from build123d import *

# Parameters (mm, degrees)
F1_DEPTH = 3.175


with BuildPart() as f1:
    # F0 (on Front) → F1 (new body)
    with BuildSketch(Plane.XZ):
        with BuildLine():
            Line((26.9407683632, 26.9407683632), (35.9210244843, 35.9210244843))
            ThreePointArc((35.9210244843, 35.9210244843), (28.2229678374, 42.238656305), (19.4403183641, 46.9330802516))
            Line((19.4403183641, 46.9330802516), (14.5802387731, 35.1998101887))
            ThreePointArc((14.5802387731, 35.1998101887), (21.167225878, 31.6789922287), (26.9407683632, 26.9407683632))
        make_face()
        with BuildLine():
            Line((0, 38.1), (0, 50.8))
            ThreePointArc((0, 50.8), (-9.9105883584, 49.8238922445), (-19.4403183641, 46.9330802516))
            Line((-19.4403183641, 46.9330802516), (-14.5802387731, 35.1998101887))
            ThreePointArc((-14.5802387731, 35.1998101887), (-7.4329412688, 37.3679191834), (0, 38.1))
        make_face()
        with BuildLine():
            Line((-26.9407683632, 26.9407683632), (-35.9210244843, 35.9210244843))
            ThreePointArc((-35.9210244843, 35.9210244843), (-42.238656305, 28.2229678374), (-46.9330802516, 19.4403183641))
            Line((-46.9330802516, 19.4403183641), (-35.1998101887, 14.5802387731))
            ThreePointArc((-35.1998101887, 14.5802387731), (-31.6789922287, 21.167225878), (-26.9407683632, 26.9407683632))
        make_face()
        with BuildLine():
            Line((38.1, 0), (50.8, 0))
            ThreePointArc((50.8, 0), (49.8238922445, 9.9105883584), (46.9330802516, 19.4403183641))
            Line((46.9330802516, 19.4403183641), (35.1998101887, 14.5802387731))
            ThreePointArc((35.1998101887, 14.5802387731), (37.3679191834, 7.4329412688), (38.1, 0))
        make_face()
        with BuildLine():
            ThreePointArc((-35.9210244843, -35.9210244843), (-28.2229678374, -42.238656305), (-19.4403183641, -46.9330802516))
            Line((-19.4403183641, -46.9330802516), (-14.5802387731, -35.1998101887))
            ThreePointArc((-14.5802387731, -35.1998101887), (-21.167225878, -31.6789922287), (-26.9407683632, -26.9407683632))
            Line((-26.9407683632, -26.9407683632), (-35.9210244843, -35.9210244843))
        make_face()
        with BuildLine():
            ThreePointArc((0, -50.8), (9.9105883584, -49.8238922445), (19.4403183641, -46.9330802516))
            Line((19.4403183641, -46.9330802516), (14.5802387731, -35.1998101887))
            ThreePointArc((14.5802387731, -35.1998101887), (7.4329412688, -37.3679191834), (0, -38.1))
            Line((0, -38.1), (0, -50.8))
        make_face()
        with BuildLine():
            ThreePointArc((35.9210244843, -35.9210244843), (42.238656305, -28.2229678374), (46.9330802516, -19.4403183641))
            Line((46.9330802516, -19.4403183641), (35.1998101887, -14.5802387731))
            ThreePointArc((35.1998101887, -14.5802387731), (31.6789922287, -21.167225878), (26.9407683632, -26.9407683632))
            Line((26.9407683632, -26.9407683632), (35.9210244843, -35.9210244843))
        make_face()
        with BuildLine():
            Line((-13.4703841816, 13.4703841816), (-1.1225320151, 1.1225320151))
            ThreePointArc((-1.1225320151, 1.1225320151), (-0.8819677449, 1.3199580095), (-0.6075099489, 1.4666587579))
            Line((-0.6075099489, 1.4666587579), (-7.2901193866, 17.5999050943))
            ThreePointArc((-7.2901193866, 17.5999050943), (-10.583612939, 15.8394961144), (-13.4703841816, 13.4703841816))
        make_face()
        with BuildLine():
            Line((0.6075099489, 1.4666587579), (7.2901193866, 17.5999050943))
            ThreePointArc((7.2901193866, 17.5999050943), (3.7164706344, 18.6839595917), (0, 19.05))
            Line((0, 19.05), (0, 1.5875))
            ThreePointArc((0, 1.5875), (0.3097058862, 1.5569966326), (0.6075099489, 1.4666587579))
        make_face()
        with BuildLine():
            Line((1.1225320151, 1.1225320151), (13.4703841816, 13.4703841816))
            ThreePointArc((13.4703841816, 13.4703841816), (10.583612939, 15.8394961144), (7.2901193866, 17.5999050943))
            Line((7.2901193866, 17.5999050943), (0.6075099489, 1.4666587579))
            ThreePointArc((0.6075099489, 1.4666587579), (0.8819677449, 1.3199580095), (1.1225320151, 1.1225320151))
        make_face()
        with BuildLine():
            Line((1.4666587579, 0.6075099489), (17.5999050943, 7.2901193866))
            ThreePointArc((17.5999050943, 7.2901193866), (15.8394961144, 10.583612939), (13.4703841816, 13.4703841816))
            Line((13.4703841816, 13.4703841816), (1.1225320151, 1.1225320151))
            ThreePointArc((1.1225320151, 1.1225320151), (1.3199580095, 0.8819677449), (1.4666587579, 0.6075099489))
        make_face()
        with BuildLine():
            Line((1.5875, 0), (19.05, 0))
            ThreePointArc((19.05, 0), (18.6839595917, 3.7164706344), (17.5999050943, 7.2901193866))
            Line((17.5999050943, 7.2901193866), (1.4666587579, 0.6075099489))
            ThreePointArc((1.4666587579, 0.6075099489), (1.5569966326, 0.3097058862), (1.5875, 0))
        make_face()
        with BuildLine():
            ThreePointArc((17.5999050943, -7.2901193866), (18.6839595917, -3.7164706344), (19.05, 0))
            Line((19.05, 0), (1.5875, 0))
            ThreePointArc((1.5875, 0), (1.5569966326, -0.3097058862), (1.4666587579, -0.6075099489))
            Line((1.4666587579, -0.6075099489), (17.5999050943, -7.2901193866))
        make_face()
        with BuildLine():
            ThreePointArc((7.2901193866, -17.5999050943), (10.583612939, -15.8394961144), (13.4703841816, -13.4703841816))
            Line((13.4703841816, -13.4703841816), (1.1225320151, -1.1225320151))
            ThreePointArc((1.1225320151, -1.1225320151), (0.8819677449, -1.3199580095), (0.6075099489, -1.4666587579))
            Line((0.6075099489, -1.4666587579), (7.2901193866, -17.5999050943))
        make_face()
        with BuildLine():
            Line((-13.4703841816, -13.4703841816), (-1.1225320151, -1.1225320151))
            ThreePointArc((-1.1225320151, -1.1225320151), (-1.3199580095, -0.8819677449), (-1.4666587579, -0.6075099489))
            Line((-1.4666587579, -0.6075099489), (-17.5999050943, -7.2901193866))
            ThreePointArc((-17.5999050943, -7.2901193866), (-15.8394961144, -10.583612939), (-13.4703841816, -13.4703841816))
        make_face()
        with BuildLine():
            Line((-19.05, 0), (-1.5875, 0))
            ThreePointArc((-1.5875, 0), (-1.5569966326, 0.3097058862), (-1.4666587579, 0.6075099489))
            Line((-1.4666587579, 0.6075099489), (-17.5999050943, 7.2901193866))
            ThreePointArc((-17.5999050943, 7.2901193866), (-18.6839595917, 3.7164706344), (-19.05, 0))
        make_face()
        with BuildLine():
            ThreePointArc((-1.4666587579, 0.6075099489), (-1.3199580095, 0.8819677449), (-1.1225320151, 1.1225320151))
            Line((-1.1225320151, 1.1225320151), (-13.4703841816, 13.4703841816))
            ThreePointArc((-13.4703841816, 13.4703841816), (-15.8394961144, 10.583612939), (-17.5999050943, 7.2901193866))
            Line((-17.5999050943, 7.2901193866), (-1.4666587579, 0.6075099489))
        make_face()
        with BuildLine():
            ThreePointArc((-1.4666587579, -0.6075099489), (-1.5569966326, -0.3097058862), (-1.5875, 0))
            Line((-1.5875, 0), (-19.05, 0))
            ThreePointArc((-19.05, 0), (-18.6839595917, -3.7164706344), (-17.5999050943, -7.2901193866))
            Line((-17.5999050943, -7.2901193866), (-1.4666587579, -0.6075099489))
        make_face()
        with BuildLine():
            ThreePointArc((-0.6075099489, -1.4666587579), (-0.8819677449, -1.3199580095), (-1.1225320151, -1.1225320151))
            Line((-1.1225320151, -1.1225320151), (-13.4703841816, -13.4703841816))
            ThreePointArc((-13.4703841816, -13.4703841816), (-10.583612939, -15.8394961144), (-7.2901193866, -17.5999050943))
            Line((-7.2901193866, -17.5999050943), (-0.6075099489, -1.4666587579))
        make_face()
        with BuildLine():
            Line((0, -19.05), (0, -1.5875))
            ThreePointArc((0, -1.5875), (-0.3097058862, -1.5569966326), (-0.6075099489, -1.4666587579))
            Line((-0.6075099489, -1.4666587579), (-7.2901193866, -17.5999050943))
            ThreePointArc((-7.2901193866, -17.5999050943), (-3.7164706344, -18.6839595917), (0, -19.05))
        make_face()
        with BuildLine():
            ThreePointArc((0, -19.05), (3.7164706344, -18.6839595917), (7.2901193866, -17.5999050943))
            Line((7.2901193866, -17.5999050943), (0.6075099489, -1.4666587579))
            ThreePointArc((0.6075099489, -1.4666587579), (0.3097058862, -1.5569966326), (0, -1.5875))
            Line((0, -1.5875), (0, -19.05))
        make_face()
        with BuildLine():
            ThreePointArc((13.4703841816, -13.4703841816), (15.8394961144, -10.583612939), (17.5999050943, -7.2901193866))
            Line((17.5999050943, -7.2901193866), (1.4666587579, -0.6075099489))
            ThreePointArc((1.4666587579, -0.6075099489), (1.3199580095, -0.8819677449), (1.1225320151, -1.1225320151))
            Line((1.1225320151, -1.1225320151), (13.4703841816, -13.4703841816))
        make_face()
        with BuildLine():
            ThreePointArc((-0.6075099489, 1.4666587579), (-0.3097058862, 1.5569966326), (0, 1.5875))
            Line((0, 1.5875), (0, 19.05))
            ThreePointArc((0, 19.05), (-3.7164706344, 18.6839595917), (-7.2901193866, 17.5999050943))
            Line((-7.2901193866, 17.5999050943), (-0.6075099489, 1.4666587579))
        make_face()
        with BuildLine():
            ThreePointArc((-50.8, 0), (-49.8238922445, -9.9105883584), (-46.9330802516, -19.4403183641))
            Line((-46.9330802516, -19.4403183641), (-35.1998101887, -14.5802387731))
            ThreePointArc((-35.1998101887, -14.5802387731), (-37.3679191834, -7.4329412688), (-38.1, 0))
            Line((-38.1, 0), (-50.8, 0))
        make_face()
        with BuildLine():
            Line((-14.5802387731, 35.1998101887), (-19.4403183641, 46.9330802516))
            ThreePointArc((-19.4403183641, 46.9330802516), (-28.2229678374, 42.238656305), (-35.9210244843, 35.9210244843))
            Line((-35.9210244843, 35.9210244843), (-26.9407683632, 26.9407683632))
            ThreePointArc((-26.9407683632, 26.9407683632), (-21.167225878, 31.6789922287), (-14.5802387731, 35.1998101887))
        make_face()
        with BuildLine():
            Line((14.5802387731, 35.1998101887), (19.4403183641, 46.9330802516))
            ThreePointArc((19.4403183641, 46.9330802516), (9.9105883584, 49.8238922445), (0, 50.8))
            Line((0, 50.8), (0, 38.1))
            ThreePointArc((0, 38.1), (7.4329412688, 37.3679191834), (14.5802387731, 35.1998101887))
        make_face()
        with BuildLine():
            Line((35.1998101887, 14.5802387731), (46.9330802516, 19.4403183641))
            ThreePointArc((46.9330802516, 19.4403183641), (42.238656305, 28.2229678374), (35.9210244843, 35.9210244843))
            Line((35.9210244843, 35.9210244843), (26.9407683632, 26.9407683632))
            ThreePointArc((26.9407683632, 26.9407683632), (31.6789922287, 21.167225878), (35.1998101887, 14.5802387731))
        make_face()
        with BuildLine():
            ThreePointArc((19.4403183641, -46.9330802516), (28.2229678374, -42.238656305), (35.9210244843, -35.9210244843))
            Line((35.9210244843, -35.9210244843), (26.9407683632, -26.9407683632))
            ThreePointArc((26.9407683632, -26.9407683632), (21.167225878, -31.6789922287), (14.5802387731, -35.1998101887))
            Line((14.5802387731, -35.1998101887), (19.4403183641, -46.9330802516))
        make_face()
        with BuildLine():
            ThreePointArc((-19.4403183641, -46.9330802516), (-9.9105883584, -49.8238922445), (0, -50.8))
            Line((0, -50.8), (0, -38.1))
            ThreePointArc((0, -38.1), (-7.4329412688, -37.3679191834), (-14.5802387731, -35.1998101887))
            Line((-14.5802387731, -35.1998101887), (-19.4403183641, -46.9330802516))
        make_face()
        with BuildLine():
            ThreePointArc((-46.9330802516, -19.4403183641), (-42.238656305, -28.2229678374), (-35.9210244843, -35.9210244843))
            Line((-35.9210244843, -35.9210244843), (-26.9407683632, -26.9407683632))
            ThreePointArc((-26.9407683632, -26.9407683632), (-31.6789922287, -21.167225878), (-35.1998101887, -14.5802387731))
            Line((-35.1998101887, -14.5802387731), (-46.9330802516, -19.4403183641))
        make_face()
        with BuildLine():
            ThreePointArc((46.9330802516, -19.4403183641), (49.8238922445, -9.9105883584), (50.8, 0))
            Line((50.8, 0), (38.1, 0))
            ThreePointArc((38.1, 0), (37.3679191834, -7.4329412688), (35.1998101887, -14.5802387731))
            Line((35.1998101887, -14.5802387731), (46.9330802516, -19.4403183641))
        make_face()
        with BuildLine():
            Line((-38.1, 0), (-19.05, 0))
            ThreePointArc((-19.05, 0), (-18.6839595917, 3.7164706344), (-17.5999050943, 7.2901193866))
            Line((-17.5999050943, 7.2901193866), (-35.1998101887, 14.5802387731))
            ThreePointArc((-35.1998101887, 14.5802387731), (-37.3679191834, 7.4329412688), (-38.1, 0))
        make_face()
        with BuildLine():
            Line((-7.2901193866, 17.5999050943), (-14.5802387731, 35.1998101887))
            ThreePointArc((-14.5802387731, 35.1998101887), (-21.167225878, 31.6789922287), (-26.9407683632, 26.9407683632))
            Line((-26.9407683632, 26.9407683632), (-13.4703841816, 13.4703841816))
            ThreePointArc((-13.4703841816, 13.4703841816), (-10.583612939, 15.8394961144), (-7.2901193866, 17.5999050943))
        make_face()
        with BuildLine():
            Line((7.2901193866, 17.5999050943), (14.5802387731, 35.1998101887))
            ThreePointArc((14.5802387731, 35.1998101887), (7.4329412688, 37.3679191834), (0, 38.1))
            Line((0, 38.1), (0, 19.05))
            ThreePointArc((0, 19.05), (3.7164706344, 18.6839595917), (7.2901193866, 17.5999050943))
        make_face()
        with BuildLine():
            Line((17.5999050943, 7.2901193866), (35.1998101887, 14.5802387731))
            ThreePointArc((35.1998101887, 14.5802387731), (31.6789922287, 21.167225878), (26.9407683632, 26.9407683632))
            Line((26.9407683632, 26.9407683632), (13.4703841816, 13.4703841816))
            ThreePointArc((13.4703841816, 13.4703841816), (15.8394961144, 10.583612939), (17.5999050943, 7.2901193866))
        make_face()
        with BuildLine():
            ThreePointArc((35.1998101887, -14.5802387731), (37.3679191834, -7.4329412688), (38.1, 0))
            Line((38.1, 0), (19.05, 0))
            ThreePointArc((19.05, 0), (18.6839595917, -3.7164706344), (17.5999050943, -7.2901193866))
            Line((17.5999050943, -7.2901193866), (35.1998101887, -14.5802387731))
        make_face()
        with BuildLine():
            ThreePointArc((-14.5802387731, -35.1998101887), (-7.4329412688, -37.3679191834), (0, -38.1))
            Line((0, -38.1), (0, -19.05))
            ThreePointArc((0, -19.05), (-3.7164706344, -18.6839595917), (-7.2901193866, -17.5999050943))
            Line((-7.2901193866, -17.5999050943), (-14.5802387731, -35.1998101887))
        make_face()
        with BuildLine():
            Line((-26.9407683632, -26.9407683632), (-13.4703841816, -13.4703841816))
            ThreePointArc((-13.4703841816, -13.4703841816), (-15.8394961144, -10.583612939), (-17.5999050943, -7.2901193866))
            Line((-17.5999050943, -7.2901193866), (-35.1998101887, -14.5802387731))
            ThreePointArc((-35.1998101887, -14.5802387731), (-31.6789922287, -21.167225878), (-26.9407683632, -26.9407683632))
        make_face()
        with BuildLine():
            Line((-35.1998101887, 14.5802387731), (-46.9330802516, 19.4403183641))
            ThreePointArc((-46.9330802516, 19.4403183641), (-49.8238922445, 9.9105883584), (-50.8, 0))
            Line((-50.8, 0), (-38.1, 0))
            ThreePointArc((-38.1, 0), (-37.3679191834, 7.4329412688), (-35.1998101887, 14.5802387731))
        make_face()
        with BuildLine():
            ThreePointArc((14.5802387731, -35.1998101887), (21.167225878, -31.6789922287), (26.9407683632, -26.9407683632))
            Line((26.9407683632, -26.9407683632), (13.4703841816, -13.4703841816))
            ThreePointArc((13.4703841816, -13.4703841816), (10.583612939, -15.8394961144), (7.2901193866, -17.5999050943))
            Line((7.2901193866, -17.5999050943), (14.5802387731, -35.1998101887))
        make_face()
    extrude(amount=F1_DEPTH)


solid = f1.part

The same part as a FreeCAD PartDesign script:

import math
import FreeCAD as App
import Part
import Sketcher

V = App.Vector
Q = App.Units.Quantity

doc = App.newDocument("Part")
body = doc.addObject("PartDesign::Body", "Body")

# Sketch on XZ plane
sketch1 = doc.addObject("Sketcher::SketchObject", "Sketch")
body.addObject(sketch1)
sketch1.AttachmentSupport = (doc.XZ_Plane, [""])
sketch1.MapMode = "FlatFace"
sketch1.addGeometry([
    Part.ArcOfCircle(Part.Circle(V(0, 0, 0), V(0, 0, 1), 50.8), math.radians(112), math.radians(158)),  # 0
    Part.ArcOfCircle(Part.Circle(V(0, 0, 0), V(0, 0, 1), 50.8), math.radians(158), math.radians(180)),  # 1
    Part.ArcOfCircle(Part.Circle(V(0, 0, 0), V(0, 0, 1), 50.8), math.radians(180), math.radians(202)),  # 2
    Part.ArcOfCircle(Part.Circle(V(0, 0, 0), V(0, 0, 1), 50.8), math.radians(-158), math.radians(-112)),  # 3
    Part.ArcOfCircle(Part.Circle(V(0, 0, 0), V(0, 0, 1), 50.8), math.radians(-112), math.radians(-90)),  # 4
    Part.ArcOfCircle(Part.Circle(V(0, 0, 0), V(0, 0, 1), 50.8), math.radians(-90), math.radians(-68)),  # 5
    Part.ArcOfCircle(Part.Circle(V(0, 0, 0), V(0, 0, 1), 50.8), math.radians(-68), math.radians(-22)),  # 6
    Part.ArcOfCircle(Part.Circle(V(0, 0, 0), V(0, 0, 1), 50.8), math.radians(-22), math.radians(0)),  # 7
    Part.ArcOfCircle(Part.Circle(V(0, 0, 0), V(0, 0, 1), 50.8), math.radians(0), math.radians(22)),  # 8
    Part.ArcOfCircle(Part.Circle(V(0, 0, 0), V(0, 0, 1), 50.8), math.radians(22), math.radians(68)),  # 9
    Part.ArcOfCircle(Part.Circle(V(0, 0, 0), V(0, 0, 1), 50.8), math.radians(68), math.radians(90)),  # 10
    Part.ArcOfCircle(Part.Circle(V(0, 0, 0), V(0, 0, 1), 50.8), math.radians(90), math.radians(112)),  # 11
    Part.ArcOfCircle(Part.Circle(V(0, 0, 0), V(0, 0, 1), 38.1), math.radians(-135), math.radians(-113)),  # 12
    Part.LineSegment(V(-26.9, -26.9, 0), V(-13.5, -13.5, 0)),  # 13
    Part.ArcOfCircle(Part.Circle(V(0, 0, 0), V(0, 0, 1), 19), math.radians(-135), math.radians(-113)),  # 14
    Part.LineSegment(V(-7.3, -17.6, 0), V(-14.6, -35.2, 0)),  # 15
    Part.ArcOfCircle(Part.Circle(V(0, 0, 0), V(0, 0, 1), 38.1), math.radians(180), math.radians(203)),  # 16
    Part.LineSegment(V(-38.1, 0, 0), V(-19.1, 0, 0)),  # 17
    Part.ArcOfCircle(Part.Circle(V(0, 0, 0), V(0, 0, 1), 19), math.radians(180), math.radians(203)),  # 18
    Part.LineSegment(V(-17.6, -7.3, 0), V(-35.2, -14.6, 0)),  # 19
    Part.ArcOfCircle(Part.Circle(V(0, 0, 0), V(0, 0, 1), 38.1), math.radians(-90), math.radians(-67)),  # 20
    Part.LineSegment(V(0, -38.1, 0), V(0, -19.1, 0)),  # 21
    Part.ArcOfCircle(Part.Circle(V(0, 0, 0), V(0, 0, 1), 19), math.radians(-90), math.radians(-67)),  # 22
    Part.LineSegment(V(7.3, -17.6, 0), V(14.6, -35.2, 0)),  # 23
    Part.ArcOfCircle(Part.Circle(V(0, 0, 0), V(0, 0, 1), 19), math.radians(-45), math.radians(-23)),  # 24
    Part.LineSegment(V(17.6, -7.3, 0), V(35.2, -14.6, 0)),  # 25
    Part.ArcOfCircle(Part.Circle(V(0, 0, 0), V(0, 0, 1), 38.1), math.radians(-45), math.radians(-23)),  # 26
    Part.LineSegment(V(26.9, -26.9, 0), V(13.5, -13.5, 0)),  # 27
    Part.LineSegment(V(-17.6, 7.3, 0), V(-35.2, 14.6, 0)),  # 28
    Part.ArcOfCircle(Part.Circle(V(0, 0, 0), V(0, 0, 1), 38.1), math.radians(135), math.radians(157)),  # 29
    Part.LineSegment(V(-26.9, 26.9, 0), V(-13.5, 13.5, 0)),  # 30
    Part.ArcOfCircle(Part.Circle(V(0, 0, 0), V(0, 0, 1), 19), math.radians(135), math.radians(157)),  # 31
    Part.ArcOfCircle(Part.Circle(V(0, 0, 0), V(0, 0, 1), 38.1), math.radians(90), math.radians(113)),  # 32
    Part.LineSegment(V(0, 38.1, 0), V(0, 19.1, 0)),  # 33
    Part.ArcOfCircle(Part.Circle(V(0, 0, 0), V(0, 0, 1), 19), math.radians(90), math.radians(113)),  # 34
    Part.LineSegment(V(-7.3, 17.6, 0), V(-14.6, 35.2, 0)),  # 35
    Part.ArcOfCircle(Part.Circle(V(0, 0, 0), V(0, 0, 1), 1.6), math.radians(113), math.radians(135)),  # 36
    Part.ArcOfCircle(Part.Circle(V(0, 0, 0), V(0, 0, 1), 1.6), math.radians(90), math.radians(112)),  # 37
    Part.ArcOfCircle(Part.Circle(V(0, 0, 0), V(0, 0, 1), 1.6), math.radians(68), math.radians(90)),  # 38
    Part.ArcOfCircle(Part.Circle(V(0, 0, 0), V(0, 0, 1), 1.6), math.radians(45), math.radians(67)),  # 39
    Part.ArcOfCircle(Part.Circle(V(0, 0, 0), V(0, 0, 1), 1.6), math.radians(23), math.radians(45)),  # 40
    Part.ArcOfCircle(Part.Circle(V(0, 0, 0), V(0, 0, 1), 1.6), math.radians(0), math.radians(22)),  # 41
    Part.ArcOfCircle(Part.Circle(V(0, 0, 0), V(0, 0, 1), 1.6), math.radians(-22), math.radians(0)),  # 42
    Part.ArcOfCircle(Part.Circle(V(0, 0, 0), V(0, 0, 1), 1.6), math.radians(-45), math.radians(-23)),  # 43
    Part.ArcOfCircle(Part.Circle(V(0, 0, 0), V(0, 0, 1), 1.6), math.radians(-67), math.radians(-45)),  # 44
    Part.ArcOfCircle(Part.Circle(V(0, 0, 0), V(0, 0, 1), 1.6), math.radians(-90), math.radians(-68)),  # 45
    Part.ArcOfCircle(Part.Circle(V(0, 0, 0), V(0, 0, 1), 1.6), math.radians(-112), math.radians(-90)),  # 46
    Part.ArcOfCircle(Part.Circle(V(0, 0, 0), V(0, 0, 1), 1.6), math.radians(-135), math.radians(-113)),  # 47
    Part.ArcOfCircle(Part.Circle(V(0, 0, 0), V(0, 0, 1), 1.6), math.radians(-157), math.radians(-135)),  # 48
    Part.ArcOfCircle(Part.Circle(V(0, 0, 0), V(0, 0, 1), 1.6), math.radians(-180), math.radians(-158)),  # 49
    Part.ArcOfCircle(Part.Circle(V(0, 0, 0), V(0, 0, 1), 1.6), math.radians(158), math.radians(180)),  # 50
    Part.ArcOfCircle(Part.Circle(V(0, 0, 0), V(0, 0, 1), 1.6), math.radians(135), math.radians(157)),  # 51
    Part.ArcOfCircle(Part.Circle(V(0, 0, 0), V(0, 0, 1), 38.1), math.radians(0), math.radians(23)),  # 52
    Part.LineSegment(V(38.1, 0, 0), V(19.1, 0, 0)),  # 53
    Part.ArcOfCircle(Part.Circle(V(0, 0, 0), V(0, 0, 1), 19), math.radians(0), math.radians(23)),  # 54
    Part.LineSegment(V(17.6, 7.3, 0), V(35.2, 14.6, 0)),  # 55
    Part.ArcOfCircle(Part.Circle(V(0, 0, 0), V(0, 0, 1), 38.1), math.radians(45), math.radians(67)),  # 56
    Part.LineSegment(V(26.9, 26.9, 0), V(13.5, 13.5, 0)),  # 57
    Part.ArcOfCircle(Part.Circle(V(0, 0, 0), V(0, 0, 1), 19), math.radians(45), math.radians(67)),  # 58
    Part.LineSegment(V(7.3, 17.6, 0), V(14.6, 35.2, 0)),  # 59
], False)
sketch1.addConstraint([
    Sketcher.Constraint("Tangent", 0, 2, 1, 1),
    Sketcher.Constraint("Tangent", 1, 2, 2, 1),
    Sketcher.Constraint("Tangent", 2, 2, 3, 1),
    Sketcher.Constraint("Tangent", 3, 2, 4, 1),
    Sketcher.Constraint("Tangent", 4, 2, 5, 1),
    Sketcher.Constraint("Tangent", 5, 2, 6, 1),
    Sketcher.Constraint("Tangent", 6, 2, 7, 1),
    Sketcher.Constraint("Tangent", 7, 2, 8, 1),
    Sketcher.Constraint("Tangent", 8, 2, 9, 1),
    Sketcher.Constraint("Tangent", 9, 2, 10, 1),
    Sketcher.Constraint("Tangent", 10, 2, 11, 1),
    Sketcher.Constraint("Tangent", 11, 2, 0, 1),
    Sketcher.Constraint("Coincident", 12, 1, 13, 1),
    Sketcher.Constraint("Coincident", 13, 2, 14, 1),
    Sketcher.Constraint("Coincident", 14, 2, 15, 1),
    Sketcher.Constraint("Coincident", 15, 2, 12, 2),
    Sketcher.Constraint("Coincident", 16, 1, 17, 1),
    Sketcher.Constraint("Coincident", 17, 2, 18, 1),
    Sketcher.Constraint("Coincident", 18, 2, 19, 1),
    Sketcher.Constraint("Coincident", 19, 2, 16, 2),
    Sketcher.Constraint("Coincident", 20, 1, 21, 1),
    Sketcher.Constraint("Coincident", 21, 2, 22, 1),
    Sketcher.Constraint("Coincident", 22, 2, 23, 1),
    Sketcher.Constraint("Coincident", 23, 2, 20, 2),
    Sketcher.Constraint("Coincident", 24, 2, 25, 1),
    Sketcher.Constraint("Coincident", 25, 2, 26, 2),
    Sketcher.Constraint("Coincident", 26, 1, 27, 1),
    Sketcher.Constraint("Coincident", 27, 2, 24, 1),
    Sketcher.Constraint("Coincident", 28, 2, 29, 2),
    Sketcher.Constraint("Coincident", 29, 1, 30, 1),
    Sketcher.Constraint("Coincident", 30, 2, 31, 1),
    Sketcher.Constraint("Coincident", 31, 2, 28, 1),
    Sketcher.Constraint("Coincident", 32, 1, 33, 1),
    Sketcher.Constraint("Coincident", 33, 2, 34, 1),
    Sketcher.Constraint("Coincident", 34, 2, 35, 1),
    Sketcher.Constraint("Coincident", 35, 2, 32, 2),
    Sketcher.Constraint("Tangent", 36, 1, 37, 2),
    Sketcher.Constraint("Tangent", 37, 1, 38, 2),
    Sketcher.Constraint("Tangent", 38, 1, 39, 2),
    Sketcher.Constraint("Tangent", 39, 1, 40, 2),
    Sketcher.Constraint("Tangent", 40, 1, 41, 2),
    Sketcher.Constraint("Tangent", 41, 1, 42, 2),
    Sketcher.Constraint("Tangent", 42, 1, 43, 2),
    Sketcher.Constraint("Tangent", 43, 1, 44, 2),
    Sketcher.Constraint("Tangent", 44, 1, 45, 2),
    Sketcher.Constraint("Tangent", 45, 1, 46, 2),
    Sketcher.Constraint("Tangent", 46, 1, 47, 2),
    Sketcher.Constraint("Tangent", 47, 1, 48, 2),
    Sketcher.Constraint("Tangent", 48, 1, 49, 2),
    Sketcher.Constraint("Tangent", 49, 1, 50, 2),
    Sketcher.Constraint("Tangent", 50, 1, 51, 2),
    Sketcher.Constraint("Tangent", 51, 1, 36, 2),
    Sketcher.Constraint("Coincident", 52, 1, 53, 1),
    Sketcher.Constraint("Coincident", 53, 2, 54, 1),
    Sketcher.Constraint("Coincident", 54, 2, 55, 1),
    Sketcher.Constraint("Coincident", 55, 2, 52, 2),
    Sketcher.Constraint("Coincident", 56, 1, 57, 1),
    Sketcher.Constraint("Coincident", 57, 2, 58, 1),
    Sketcher.Constraint("Coincident", 58, 2, 59, 1),
    Sketcher.Constraint("Coincident", 59, 2, 56, 2),
    Sketcher.Constraint("Horizontal", 17),
    Sketcher.Constraint("Vertical", 21),
    Sketcher.Constraint("Vertical", 33),
    Sketcher.Constraint("Horizontal", 53),
    Sketcher.Constraint("Coincident", 0, 3, -1, 1),
    Sketcher.Constraint("Coincident", 2, 3, -1, 1),
    Sketcher.Constraint("Coincident", 4, 3, -1, 1),
    Sketcher.Constraint("Coincident", 6, 3, -1, 1),
    Sketcher.Constraint("Coincident", 8, 3, -1, 1),
    Sketcher.Constraint("Coincident", 12, 3, -1, 1),
    Sketcher.Constraint("Coincident", 14, 3, -1, 1),
    Sketcher.Constraint("Coincident", 16, 3, -1, 1),
    Sketcher.Constraint("Coincident", 18, 3, -1, 1),
    Sketcher.Constraint("Coincident", 20, 3, -1, 1),
    Sketcher.Constraint("Coincident", 22, 3, -1, 1),
    Sketcher.Constraint("Coincident", 24, 3, -1, 1),
    Sketcher.Constraint("Coincident", 26, 3, -1, 1),
    Sketcher.Constraint("Coincident", 29, 3, -1, 1),
    Sketcher.Constraint("Coincident", 31, 3, -1, 1),
    Sketcher.Constraint("Coincident", 32, 3, -1, 1),
    Sketcher.Constraint("Coincident", 34, 3, -1, 1),
    Sketcher.Constraint("Coincident", 36, 3, -1, 1),
    Sketcher.Constraint("Coincident", 38, 3, -1, 1),
    Sketcher.Constraint("Coincident", 40, 3, -1, 1),
    Sketcher.Constraint("Coincident", 42, 3, -1, 1),
    Sketcher.Constraint("Coincident", 44, 3, -1, 1),
    Sketcher.Constraint("Coincident", 46, 3, -1, 1),
    Sketcher.Constraint("Coincident", 48, 3, -1, 1),
    Sketcher.Constraint("Coincident", 52, 3, -1, 1),
    Sketcher.Constraint("Coincident", 54, 3, -1, 1),
    Sketcher.Constraint("Coincident", 56, 3, -1, 1),
    Sketcher.Constraint("Coincident", 58, 3, -1, 1),
    Sketcher.Constraint("Equal", 8, 9),
    Sketcher.Constraint("Equal", 12, 16),
    Sketcher.Constraint("Equal", 14, 18),
    Sketcher.Constraint("Equal", 16, 20),
    Sketcher.Constraint("Equal", 18, 22),
    Sketcher.Constraint("Equal", 22, 24),
    Sketcher.Constraint("Equal", 20, 26),
    Sketcher.Constraint("Equal", 26, 29),
    Sketcher.Constraint("Equal", 24, 31),
    Sketcher.Constraint("Equal", 29, 32),
    Sketcher.Constraint("Equal", 31, 34),
    Sketcher.Constraint("Equal", 48, 49),
    Sketcher.Constraint("Equal", 32, 52),
    Sketcher.Constraint("Equal", 34, 54),
    Sketcher.Constraint("Equal", 52, 56),
    Sketcher.Constraint("Equal", 54, 58),
    Sketcher.Constraint("PointOnObject", 1, 2, -1),
    Sketcher.Constraint("PointOnObject", 4, 2, -2),
    Sketcher.Constraint("PointOnObject", 7, 2, -1),
    Sketcher.Constraint("PointOnObject", 10, 2, -2),
    Sketcher.Constraint("PointOnObject", 16, 1, -1),
    Sketcher.Constraint("PointOnObject", 20, 1, -2),
    Sketcher.Constraint("PointOnObject", 32, 1, -2),
    Sketcher.Constraint("PointOnObject", 37, 1, -2),
    Sketcher.Constraint("PointOnObject", 41, 1, -1),
    Sketcher.Constraint("PointOnObject", 45, 1, -2),
    Sketcher.Constraint("PointOnObject", 49, 1, -1),
    Sketcher.Constraint("PointOnObject", 52, 1, -1),
    Sketcher.Constraint("Perpendicular", 19, 23),
    Sketcher.Constraint("Perpendicular", 15, 25),
    Sketcher.Constraint("Perpendicular", 13, 27),
    Sketcher.Constraint("Parallel", 25, 28),
    Sketcher.Constraint("Parallel", 27, 30),
    Sketcher.Constraint("Parallel", 23, 35),
    Sketcher.Constraint("Perpendicular", 35, 55),
    Sketcher.Constraint("Perpendicular", 30, 57),
    Sketcher.Constraint("Perpendicular", 28, 59),
    Sketcher.Constraint("Horizontal", 3, 2, 5, 2),
    Sketcher.Constraint("Horizontal", 2, 2, 6, 2),
    Sketcher.Constraint("Horizontal", 0, 2, 8, 2),
    Sketcher.Constraint("Horizontal", 9, 2, 11, 2),
    Sketcher.Constraint("Horizontal", 14, 2, 22, 2),
    Sketcher.Constraint("Horizontal", 15, 2, 23, 2),
    Sketcher.Constraint("Horizontal", 18, 2, 24, 2),
    Sketcher.Constraint("Horizontal", 12, 1, 26, 1),
    Sketcher.Constraint("Horizontal", 13, 2, 27, 2),
    Sketcher.Constraint("Horizontal", 36, 1, 38, 1),
    Sketcher.Constraint("Horizontal", 44, 1, 46, 1),
    Sketcher.Constraint("Horizontal", 43, 1, 47, 1),
    Sketcher.Constraint("Horizontal", 42, 1, 48, 1),
    Sketcher.Constraint("Horizontal", 40, 1, 50, 1),
    Sketcher.Constraint("Horizontal", 39, 1, 51, 1),
    Sketcher.Constraint("Horizontal", 31, 2, 54, 2),
    Sketcher.Constraint("Horizontal", 29, 1, 56, 1),
    Sketcher.Constraint("Horizontal", 34, 2, 58, 2),
    Sketcher.Constraint("Vertical", 0, 2, 2, 2),
    Sketcher.Constraint("Vertical", 5, 2, 9, 2),
    Sketcher.Constraint("Vertical", 19, 2, 28, 2),
    Sketcher.Constraint("Vertical", 12, 1, 29, 1),
    Sketcher.Constraint("Vertical", 14, 2, 34, 2),
    Sketcher.Constraint("Vertical", 40, 1, 42, 1),
    Sketcher.Constraint("Vertical", 39, 1, 43, 1),
    Sketcher.Constraint("Vertical", 38, 1, 44, 1),
    Sketcher.Constraint("Radius", 0, Q("2 in")),
    Sketcher.Constraint("Radius", 12, Q("1.5 in")),
    Sketcher.Constraint("Radius", 14, Q("0.75 in")),
    Sketcher.Constraint("Radius", 36, Q("0.0625 in")),
    Sketcher.Constraint("Angle", 15, Q("-112.5 deg")),
    Sketcher.Constraint("DistanceX", 0, 2, -1, 1, 46.93308),
    Sketcher.Constraint("DistanceX", 3, 2, -1, 1, 19.440318),
    Sketcher.Constraint("DistanceX", 12, 1, -1, 1, 26.940768),
    Sketcher.Constraint("DistanceX", 14, 2, -1, 1, 7.290119),
    Sketcher.Constraint("DistanceY", 18, 2, -1, 1, 7.290119),
    Sketcher.Constraint("DistanceX", 36, 1, -1, 1, 0.60751),
    Sketcher.Constraint("DistanceX", -1, 1, 40, 1, 1.466659),
    Sketcher.Constraint("DistanceX", -1, 1, 39, 1, 1.122532),
])
pad1 = doc.addObject("PartDesign::Pad", "Pad")
body.addObject(pad1)
pad1.Profile = sketch1
pad1.Length = Q("0.125 in")

doc.recompute()
